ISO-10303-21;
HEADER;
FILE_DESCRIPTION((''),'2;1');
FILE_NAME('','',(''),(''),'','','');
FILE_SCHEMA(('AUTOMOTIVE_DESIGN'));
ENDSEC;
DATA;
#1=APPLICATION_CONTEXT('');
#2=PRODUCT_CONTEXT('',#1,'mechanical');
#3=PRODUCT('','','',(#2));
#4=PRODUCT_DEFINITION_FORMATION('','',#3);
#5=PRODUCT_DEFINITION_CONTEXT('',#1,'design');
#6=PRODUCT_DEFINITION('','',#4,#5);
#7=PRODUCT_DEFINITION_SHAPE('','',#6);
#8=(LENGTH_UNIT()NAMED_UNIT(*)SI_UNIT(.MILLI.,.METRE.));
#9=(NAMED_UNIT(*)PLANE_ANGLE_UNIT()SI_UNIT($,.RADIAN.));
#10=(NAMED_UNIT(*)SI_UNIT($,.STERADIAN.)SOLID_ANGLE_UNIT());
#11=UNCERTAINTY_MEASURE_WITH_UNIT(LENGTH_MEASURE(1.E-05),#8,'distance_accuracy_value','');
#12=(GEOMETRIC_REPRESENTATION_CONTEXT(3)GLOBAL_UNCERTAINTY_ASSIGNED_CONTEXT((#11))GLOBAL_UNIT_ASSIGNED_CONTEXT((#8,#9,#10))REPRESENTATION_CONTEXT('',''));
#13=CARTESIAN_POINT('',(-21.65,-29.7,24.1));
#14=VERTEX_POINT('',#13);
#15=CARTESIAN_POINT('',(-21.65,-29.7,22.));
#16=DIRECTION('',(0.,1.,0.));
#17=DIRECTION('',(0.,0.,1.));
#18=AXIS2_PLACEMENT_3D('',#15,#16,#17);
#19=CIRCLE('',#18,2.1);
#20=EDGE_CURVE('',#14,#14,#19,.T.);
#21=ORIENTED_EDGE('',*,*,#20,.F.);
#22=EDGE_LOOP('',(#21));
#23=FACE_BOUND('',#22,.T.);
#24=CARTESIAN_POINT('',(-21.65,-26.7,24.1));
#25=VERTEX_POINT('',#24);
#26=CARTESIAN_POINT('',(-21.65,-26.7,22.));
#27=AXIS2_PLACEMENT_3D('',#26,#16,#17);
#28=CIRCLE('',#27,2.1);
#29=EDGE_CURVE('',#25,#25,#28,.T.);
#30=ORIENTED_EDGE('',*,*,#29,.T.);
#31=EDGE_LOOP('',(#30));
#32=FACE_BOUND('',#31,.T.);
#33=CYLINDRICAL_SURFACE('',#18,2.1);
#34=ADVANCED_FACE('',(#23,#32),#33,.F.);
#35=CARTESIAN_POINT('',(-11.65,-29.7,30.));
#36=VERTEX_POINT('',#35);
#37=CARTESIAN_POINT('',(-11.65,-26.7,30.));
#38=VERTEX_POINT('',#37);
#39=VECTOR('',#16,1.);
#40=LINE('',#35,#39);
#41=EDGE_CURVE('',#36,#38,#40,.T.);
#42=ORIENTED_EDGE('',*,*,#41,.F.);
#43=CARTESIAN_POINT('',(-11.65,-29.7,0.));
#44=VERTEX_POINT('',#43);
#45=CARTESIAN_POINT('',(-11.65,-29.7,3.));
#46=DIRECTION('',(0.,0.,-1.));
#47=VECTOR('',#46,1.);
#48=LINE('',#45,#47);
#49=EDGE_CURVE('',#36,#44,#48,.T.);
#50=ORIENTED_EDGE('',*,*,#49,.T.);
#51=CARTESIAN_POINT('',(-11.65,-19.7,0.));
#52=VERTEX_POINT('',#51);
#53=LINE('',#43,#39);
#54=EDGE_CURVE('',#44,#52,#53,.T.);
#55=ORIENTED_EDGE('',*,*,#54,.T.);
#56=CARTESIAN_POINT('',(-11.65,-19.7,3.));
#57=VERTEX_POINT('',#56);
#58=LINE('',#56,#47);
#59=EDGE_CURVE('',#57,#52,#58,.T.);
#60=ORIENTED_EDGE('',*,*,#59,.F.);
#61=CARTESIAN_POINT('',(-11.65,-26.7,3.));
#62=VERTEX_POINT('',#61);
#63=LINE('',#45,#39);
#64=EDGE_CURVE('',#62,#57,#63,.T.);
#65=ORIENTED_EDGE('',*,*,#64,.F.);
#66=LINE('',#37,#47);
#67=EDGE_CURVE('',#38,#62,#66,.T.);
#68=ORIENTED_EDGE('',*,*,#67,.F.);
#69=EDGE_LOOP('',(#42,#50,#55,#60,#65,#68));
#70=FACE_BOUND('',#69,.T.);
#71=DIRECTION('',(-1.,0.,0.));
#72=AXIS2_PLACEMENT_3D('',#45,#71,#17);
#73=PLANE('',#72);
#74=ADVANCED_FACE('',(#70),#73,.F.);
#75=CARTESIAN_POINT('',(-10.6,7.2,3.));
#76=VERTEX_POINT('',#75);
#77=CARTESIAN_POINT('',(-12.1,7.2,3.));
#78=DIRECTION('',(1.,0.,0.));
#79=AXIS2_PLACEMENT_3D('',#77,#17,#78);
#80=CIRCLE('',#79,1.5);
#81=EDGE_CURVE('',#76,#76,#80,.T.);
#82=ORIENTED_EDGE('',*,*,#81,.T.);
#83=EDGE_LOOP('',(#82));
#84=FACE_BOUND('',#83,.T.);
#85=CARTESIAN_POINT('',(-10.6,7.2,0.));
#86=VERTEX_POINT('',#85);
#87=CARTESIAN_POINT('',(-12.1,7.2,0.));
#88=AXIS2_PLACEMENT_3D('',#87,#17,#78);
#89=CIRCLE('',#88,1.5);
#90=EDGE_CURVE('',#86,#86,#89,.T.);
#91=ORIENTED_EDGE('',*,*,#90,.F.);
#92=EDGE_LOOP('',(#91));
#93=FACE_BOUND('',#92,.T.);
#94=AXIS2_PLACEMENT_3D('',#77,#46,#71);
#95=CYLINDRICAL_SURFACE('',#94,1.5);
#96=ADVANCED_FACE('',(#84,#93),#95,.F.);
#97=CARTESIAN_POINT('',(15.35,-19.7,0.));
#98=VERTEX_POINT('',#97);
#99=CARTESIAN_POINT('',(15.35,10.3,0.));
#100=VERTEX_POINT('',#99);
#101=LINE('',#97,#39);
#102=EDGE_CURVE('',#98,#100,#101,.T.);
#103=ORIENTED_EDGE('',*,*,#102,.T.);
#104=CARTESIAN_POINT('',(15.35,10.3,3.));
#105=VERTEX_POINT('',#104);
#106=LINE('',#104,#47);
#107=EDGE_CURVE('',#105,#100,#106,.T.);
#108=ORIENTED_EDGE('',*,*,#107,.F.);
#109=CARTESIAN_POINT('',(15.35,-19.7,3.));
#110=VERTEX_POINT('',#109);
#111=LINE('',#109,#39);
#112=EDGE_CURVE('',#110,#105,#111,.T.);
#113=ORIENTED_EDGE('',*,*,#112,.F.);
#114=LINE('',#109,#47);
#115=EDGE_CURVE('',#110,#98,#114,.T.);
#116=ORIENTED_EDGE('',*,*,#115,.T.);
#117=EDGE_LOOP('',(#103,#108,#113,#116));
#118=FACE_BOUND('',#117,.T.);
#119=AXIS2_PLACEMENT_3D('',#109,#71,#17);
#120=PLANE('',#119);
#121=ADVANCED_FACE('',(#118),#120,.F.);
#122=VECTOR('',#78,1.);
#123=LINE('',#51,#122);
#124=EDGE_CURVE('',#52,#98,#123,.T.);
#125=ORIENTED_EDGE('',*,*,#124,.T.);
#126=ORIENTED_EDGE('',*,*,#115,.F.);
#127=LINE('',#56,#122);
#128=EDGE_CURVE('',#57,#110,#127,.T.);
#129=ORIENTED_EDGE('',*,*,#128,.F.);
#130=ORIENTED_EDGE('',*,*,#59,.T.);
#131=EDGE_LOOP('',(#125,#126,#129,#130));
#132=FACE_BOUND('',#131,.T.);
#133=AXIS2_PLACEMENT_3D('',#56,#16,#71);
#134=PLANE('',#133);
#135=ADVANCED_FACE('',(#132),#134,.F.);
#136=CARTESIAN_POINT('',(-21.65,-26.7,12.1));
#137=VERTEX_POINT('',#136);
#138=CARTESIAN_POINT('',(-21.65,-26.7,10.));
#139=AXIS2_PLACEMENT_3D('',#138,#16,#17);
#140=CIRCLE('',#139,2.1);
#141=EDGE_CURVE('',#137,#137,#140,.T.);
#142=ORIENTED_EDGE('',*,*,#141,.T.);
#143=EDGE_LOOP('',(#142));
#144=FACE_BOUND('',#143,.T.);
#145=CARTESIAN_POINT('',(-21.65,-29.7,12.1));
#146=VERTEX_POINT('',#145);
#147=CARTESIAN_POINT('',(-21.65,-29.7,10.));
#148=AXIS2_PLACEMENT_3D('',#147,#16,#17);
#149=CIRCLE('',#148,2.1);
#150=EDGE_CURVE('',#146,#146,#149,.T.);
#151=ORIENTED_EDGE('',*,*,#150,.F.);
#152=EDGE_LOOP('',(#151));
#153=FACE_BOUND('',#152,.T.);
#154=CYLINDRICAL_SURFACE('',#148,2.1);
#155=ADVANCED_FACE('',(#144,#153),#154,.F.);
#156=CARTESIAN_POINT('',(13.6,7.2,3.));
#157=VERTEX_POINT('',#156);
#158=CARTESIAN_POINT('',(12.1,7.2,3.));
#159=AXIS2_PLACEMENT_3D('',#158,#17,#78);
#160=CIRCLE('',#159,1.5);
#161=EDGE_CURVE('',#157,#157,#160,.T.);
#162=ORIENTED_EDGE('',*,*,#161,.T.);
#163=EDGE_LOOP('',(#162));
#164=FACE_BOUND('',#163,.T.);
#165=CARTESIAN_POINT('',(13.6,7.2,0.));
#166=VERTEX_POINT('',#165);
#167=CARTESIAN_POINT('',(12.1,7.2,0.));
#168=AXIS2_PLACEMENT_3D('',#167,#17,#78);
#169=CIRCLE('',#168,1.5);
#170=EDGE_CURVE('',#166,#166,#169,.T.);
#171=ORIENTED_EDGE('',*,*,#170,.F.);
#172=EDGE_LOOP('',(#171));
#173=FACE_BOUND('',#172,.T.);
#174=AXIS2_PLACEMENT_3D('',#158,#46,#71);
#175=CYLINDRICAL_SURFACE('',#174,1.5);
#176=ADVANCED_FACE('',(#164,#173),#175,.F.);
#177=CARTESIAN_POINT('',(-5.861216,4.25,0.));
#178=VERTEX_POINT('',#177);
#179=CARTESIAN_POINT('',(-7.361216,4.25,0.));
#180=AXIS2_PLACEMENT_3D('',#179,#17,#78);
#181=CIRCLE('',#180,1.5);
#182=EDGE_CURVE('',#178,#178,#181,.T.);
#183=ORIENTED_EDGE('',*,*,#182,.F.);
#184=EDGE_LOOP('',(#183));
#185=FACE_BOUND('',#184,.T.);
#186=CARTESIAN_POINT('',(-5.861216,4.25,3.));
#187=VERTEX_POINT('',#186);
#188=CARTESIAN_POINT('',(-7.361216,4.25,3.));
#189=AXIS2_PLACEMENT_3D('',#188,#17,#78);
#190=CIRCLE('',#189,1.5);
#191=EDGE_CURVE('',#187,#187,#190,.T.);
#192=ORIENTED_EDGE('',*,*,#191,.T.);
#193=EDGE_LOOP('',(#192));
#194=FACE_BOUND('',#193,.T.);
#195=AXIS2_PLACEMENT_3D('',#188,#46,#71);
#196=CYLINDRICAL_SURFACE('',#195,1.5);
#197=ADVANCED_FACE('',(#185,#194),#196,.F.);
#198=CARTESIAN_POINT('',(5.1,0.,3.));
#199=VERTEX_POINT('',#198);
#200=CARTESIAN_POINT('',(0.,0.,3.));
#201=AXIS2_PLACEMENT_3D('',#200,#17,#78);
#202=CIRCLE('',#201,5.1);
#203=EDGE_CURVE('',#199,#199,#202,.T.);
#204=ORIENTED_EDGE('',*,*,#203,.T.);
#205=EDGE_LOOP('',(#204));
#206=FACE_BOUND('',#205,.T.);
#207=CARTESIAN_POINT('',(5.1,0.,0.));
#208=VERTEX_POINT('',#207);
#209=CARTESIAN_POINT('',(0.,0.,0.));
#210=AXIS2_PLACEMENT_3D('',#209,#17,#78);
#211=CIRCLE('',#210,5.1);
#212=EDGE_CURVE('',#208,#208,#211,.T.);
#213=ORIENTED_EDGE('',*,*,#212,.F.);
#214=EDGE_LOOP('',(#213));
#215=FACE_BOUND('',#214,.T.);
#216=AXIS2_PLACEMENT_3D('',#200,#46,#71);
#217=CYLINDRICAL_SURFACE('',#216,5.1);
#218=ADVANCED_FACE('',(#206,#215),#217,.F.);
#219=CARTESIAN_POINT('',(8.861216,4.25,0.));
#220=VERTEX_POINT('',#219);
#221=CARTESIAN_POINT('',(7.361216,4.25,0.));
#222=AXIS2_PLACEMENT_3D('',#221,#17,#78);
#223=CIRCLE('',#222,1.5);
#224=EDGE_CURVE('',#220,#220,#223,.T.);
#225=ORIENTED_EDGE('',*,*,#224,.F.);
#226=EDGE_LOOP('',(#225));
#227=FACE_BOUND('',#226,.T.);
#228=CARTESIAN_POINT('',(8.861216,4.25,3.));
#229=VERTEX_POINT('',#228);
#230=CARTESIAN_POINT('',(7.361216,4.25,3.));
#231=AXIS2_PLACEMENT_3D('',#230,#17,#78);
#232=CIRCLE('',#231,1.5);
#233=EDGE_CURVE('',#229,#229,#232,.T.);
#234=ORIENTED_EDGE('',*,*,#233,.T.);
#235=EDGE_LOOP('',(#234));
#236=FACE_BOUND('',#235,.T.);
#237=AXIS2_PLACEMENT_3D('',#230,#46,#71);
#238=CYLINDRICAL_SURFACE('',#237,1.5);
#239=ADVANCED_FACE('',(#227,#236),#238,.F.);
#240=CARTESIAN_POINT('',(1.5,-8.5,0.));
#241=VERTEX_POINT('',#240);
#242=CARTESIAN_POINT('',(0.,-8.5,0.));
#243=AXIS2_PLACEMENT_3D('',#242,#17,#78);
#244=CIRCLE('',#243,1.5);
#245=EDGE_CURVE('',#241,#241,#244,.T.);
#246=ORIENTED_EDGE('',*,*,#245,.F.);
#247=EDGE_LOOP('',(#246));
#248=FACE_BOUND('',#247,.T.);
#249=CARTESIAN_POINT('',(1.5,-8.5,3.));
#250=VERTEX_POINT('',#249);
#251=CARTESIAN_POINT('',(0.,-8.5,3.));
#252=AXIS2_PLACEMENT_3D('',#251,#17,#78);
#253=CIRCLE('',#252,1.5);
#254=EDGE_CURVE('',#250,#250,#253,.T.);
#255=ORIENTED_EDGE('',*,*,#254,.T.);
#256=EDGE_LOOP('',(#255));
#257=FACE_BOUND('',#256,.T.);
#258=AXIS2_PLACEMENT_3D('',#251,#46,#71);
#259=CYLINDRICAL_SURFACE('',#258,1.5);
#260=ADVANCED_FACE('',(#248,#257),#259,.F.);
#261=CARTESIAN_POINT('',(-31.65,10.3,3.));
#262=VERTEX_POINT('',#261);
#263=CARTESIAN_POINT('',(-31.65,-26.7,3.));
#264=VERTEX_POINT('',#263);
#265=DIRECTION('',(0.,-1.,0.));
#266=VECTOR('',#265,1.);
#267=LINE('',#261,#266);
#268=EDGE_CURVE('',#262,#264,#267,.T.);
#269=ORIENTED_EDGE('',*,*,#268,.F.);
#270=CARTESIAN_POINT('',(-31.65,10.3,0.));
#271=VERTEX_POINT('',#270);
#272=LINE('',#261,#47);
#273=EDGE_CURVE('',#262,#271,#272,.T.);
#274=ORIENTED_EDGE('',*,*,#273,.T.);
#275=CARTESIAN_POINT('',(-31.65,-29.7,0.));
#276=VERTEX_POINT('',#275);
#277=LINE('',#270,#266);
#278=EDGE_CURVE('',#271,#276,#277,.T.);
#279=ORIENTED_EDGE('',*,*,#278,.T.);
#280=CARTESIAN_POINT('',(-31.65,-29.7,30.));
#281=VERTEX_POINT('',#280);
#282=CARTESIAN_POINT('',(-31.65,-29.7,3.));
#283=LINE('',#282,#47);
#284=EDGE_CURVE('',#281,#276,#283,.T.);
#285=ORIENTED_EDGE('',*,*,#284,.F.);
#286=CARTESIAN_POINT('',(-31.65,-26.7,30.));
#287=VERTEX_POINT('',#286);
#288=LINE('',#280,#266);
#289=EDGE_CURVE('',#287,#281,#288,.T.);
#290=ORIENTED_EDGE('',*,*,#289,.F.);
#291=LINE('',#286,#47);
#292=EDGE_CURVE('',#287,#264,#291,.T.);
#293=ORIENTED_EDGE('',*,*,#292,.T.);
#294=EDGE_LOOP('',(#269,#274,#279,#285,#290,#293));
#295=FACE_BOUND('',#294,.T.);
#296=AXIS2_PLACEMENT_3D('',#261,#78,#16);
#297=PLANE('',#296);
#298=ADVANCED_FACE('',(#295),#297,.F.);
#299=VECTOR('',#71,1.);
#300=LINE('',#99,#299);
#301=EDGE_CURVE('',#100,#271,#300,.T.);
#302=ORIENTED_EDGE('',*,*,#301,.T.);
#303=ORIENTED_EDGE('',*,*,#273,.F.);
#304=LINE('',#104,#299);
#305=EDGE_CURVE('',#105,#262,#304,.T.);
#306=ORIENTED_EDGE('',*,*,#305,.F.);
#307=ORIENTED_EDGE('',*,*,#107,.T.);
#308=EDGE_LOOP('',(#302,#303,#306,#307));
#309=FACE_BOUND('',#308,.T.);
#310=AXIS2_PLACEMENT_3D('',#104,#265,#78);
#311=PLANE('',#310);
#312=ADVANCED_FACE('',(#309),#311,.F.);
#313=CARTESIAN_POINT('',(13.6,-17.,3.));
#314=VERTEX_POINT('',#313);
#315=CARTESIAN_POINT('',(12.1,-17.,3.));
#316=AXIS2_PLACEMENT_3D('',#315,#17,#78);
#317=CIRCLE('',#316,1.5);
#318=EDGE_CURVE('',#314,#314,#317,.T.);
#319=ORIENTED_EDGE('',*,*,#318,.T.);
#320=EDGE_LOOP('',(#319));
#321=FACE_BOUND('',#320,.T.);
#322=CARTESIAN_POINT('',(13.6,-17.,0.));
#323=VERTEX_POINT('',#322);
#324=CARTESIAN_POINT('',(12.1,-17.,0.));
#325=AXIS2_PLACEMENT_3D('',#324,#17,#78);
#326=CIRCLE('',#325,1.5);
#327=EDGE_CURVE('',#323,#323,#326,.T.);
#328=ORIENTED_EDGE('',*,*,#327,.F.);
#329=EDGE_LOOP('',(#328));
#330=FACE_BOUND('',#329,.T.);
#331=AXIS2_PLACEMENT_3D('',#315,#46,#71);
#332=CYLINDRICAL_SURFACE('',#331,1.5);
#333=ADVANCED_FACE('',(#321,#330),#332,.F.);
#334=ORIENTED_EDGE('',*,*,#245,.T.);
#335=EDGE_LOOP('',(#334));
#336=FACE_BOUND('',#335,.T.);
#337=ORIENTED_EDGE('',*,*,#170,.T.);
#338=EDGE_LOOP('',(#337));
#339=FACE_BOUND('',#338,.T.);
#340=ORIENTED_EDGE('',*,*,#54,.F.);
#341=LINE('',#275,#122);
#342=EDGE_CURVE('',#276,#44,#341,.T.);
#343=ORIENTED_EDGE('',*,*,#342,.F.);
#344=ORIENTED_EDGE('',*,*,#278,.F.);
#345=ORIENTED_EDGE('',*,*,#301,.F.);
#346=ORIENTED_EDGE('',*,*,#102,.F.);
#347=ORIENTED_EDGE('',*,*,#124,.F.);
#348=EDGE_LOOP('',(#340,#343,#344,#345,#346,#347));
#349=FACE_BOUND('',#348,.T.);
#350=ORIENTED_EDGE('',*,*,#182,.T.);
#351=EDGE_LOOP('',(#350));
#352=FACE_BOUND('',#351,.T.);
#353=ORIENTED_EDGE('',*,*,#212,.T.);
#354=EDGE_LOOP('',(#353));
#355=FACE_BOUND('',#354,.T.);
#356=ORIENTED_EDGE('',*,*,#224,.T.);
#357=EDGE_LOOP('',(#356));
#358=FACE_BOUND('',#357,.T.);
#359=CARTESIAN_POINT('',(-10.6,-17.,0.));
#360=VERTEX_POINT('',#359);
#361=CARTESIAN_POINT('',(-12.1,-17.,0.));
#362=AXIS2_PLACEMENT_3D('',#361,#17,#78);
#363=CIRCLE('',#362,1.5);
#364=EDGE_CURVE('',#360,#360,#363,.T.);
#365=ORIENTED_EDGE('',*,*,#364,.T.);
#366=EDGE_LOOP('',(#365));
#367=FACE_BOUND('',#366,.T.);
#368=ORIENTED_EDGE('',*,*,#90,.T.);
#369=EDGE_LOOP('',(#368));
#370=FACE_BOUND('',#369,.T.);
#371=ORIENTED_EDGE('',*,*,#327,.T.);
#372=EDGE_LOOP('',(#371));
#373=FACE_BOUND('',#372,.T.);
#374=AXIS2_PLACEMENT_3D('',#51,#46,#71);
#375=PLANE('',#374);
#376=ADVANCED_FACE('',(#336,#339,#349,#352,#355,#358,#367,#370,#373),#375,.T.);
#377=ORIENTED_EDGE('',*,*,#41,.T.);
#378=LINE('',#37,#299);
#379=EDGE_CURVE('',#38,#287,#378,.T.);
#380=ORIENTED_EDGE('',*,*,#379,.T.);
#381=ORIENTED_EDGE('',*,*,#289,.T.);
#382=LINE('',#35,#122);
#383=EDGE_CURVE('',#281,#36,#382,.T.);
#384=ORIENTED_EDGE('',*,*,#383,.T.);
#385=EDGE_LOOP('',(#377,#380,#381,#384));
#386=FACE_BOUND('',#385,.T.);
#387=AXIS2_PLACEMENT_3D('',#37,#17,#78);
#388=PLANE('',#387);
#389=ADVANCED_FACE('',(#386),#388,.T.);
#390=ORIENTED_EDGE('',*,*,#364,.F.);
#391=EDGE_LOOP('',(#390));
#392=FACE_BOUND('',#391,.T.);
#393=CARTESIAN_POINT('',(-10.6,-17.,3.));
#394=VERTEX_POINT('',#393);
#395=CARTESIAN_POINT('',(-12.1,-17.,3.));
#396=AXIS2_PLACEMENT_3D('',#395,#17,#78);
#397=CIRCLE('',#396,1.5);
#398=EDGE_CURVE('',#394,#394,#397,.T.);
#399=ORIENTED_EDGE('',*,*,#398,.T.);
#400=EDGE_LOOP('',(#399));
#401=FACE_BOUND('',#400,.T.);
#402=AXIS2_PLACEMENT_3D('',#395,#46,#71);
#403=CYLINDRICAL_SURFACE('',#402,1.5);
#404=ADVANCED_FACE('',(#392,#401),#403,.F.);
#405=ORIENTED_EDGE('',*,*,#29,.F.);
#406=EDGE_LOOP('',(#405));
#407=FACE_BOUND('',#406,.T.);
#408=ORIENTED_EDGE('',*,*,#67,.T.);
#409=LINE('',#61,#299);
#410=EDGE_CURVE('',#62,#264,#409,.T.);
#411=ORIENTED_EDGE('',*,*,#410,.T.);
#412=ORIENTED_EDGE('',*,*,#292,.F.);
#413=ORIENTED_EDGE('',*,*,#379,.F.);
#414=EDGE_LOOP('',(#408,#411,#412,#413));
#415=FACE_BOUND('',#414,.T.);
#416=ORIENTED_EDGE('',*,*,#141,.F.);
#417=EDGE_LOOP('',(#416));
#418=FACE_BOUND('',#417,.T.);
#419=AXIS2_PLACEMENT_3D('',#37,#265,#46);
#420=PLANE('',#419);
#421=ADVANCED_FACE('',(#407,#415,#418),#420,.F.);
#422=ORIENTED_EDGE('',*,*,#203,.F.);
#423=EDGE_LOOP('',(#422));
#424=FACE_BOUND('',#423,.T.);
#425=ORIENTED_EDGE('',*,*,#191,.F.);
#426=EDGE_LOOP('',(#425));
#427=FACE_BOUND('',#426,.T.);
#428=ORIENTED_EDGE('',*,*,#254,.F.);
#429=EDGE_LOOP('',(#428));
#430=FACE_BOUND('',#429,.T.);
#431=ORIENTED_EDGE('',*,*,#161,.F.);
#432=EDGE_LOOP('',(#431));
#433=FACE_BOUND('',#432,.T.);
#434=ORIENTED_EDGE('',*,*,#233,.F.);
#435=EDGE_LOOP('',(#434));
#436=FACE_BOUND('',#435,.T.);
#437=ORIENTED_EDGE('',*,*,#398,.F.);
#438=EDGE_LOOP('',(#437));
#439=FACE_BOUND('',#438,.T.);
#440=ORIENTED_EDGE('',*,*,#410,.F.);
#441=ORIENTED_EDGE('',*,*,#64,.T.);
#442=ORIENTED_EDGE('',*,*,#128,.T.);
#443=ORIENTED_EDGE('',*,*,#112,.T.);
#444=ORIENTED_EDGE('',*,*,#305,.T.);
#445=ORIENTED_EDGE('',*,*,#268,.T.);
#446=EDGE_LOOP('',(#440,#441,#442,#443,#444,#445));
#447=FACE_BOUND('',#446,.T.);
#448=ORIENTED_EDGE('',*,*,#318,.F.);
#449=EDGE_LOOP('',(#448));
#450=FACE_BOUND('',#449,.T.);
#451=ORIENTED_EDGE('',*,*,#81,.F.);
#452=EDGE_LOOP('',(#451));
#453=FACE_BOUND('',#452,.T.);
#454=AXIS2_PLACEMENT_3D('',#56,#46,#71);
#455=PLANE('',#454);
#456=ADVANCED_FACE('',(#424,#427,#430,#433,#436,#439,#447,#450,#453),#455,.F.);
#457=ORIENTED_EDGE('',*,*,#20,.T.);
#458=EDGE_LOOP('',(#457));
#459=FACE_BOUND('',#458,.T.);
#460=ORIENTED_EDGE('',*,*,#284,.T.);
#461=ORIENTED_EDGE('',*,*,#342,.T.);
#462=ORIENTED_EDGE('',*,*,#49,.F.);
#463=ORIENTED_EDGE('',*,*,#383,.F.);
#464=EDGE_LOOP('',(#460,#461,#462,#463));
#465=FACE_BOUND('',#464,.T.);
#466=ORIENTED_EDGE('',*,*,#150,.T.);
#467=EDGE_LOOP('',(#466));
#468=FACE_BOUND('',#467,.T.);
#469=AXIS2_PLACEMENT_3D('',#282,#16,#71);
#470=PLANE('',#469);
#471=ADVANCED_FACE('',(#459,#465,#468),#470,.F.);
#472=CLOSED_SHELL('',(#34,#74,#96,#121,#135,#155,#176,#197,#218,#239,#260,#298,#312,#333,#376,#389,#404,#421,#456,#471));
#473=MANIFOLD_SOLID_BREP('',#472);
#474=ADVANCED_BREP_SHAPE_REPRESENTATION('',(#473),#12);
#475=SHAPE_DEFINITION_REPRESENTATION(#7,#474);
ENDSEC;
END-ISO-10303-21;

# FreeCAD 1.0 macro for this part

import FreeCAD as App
import Part
import Sketcher
from FreeCAD import Vector


def add_polygon(sketch, points):
    """Adds a closed chain of lines whose ends are joined by coincident constraints."""
    first, n = sketch.GeometryCount, len(points)
    for a, b in zip(points, points[1:] + points[:1]):
        sketch.addGeometry(Part.LineSegment(App.Vector(*a, 0), App.Vector(*b, 0)), False)
    for i in range(n):
        sketch.addConstraint(Sketcher.Constraint("Coincident", first + i, 2, first + (i + 1) % n, 1))

doc = App.newDocument("Part")
body = doc.addObject("PartDesign::Body", "Body")

sketch1 = doc.addObject("Sketcher::SketchObject", "Sketch")
body.addObject(sketch1)
sketch1.AttachmentSupport = (doc.XY_Plane, [""])
sketch1.MapMode = "FlatFace"
add_polygon(sketch1, [(-11.7, -19.7), (15.3, -19.7), (15.3, 10.3), (-31.6, 10.3), (-31.6, -29.7), (-11.7, -29.7)])
sketch1.addGeometry(Part.Circle(Vector(-12.1, -17, 0), Vector(0, 0, 1), 1.5), False)
sketch1.addGeometry(Part.Circle(Vector(12.1, -17, 0), Vector(0, 0, 1), 1.5), False)
sketch1.addGeometry(Part.Circle(Vector(0, -8.5, 0), Vector(0, 0, 1), 1.5), False)
sketch1.addGeometry(Part.Circle(Vector(-7.4, 4.2, 0), Vector(0, 0, 1), 1.5), False)
sketch1.addGeometry(Part.Circle(Vector(-12.1, 7.2, 0), Vector(0, 0, 1), 1.5), False)
sketch1.addGeometry(Part.Circle(Vector(0, 0, 0), Vector(0, 0, 1), 5.1), False)
sketch1.addGeometry(Part.Circle(Vector(7.4, 4.2, 0), Vector(0, 0, 1), 1.5), False)
sketch1.addGeometry(Part.Circle(Vector(12.1, 7.2, 0), Vector(0, 0, 1), 1.5), False)
sketch1.addConstraint([
    Sketcher.Constraint("Horizontal", 0),
    Sketcher.Constraint("Vertical", 1),
    Sketcher.Constraint("Horizontal", 2),
    Sketcher.Constraint("Vertical", 3),
    Sketcher.Constraint("Horizontal", 4),
    Sketcher.Constraint("Vertical", 5),
    Sketcher.Constraint("Coincident", 11, 3, -1, 1),
    Sketcher.Constraint("Equal", 6, 7),
    Sketcher.Constraint("Equal", 7, 8),
    Sketcher.Constraint("Equal", 8, 9),
    Sketcher.Constraint("Equal", 9, 10),
    Sketcher.Constraint("Equal", 10, 12),
    Sketcher.Constraint("Equal", 12, 13),
    Sketcher.Constraint("Symmetric", 6, 3, 7, 3, -2),
    Sketcher.Constraint("Symmetric", 9, 3, 12, 3, -2),
    Sketcher.Constraint("Symmetric", 10, 3, 13, 3, -2),
    Sketcher.Constraint("PointOnObject", 8, 3, -2),
    Sketcher.Constraint("Vertical", 6, 3, 10, 3),
    Sketcher.Constraint("Diameter", 6, 3.0),
    Sketcher.Constraint("Diameter", 11, 10.2),
    Sketcher.Constraint("DistanceX", 0, 1, 0, 2, 27.0),
    Sketcher.Constraint("DistanceX", 2, 2, 2, 1, 47.0),
    Sketcher.Constraint("DistanceY", 1, 1, 1, 2, 30.0),
    Sketcher.Constraint("DistanceY", 3, 2, 3, 1, 40.0),
    Sketcher.Constraint("DistanceY", 6, 3, -1, 1, 17.0),
    Sketcher.Constraint("DistanceX", 6, 3, -1, 1, 12.1),
    Sketcher.Constraint("DistanceY", 8, 3, -1, 1, 8.5),
    Sketcher.Constraint("DistanceY", -1, 1, 10, 3, 7.2),
    Sketcher.Constraint("DistanceY", 0, 2, -1, 1, 19.7),
    Sketcher.Constraint("DistanceY", -1, 1, 9, 3, 4.25),
    Sketcher.Constraint("DistanceX", -1, 1, 0, 2, 15.35),
    Sketcher.Constraint("DistanceX", 9, 3, 12, 3, 14.722432),
])
pad1 = doc.addObject("PartDesign::Pad", "Pad")
body.addObject(pad1)
pad1.Profile = sketch1
pad1.Length = 3

sketch2 = doc.addObject("Sketcher::SketchObject", "Sketch001")
body.addObject(sketch2)
sketch2.AttachmentSupport = (doc.XY_Plane, [""])
sketch2.MapMode = "FlatFace"
sketch2.AttachmentOffset = App.Placement(Vector(0, 0, 3), App.Rotation())
add_polygon(sketch2, [(-31.6, -26.7), (-31.6, -29.7), (-11.7, -29.7), (-11.7, -26.7)])
sketch2.addConstraint([
    Sketcher.Constraint("Vertical", 0),
    Sketcher.Constraint("Horizontal", 1),
    Sketcher.Constraint("Vertical", 2),
    Sketcher.Constraint("Horizontal", 3),
    Sketcher.Constraint("DistanceX", 1, 1, 1, 2, 20.0),
    Sketcher.Constraint("DistanceY", 0, 2, 0, 1, 3.0),
    Sketcher.Constraint("DistanceY", 0, 2, -1, 1, 29.7),
    Sketcher.Constraint("DistanceX", 0, 2, -1, 1, 31.65),
])
pad2 = doc.addObject("PartDesign::Pad", "Pad001")
body.addObject(pad2)
pad2.Profile = sketch2
pad2.Length = 27

sketch3 = doc.addObject("Sketcher::SketchObject", "Sketch002")
body.addObject(sketch3)
sketch3.AttachmentSupport = (doc.XZ_Plane, [""])
sketch3.MapMode = "FlatFace"
sketch3.AttachmentOffset = App.Placement(Vector(0, 0, 26.7), App.Rotation())
sketch3.addGeometry([
    Part.Circle(Vector(-21.6, 10, 0), Vector(0, 0, 1), 2.1),
    Part.Circle(Vector(-21.6, 22, 0), Vector(0, 0, 1), 2.1),
], False)
sketch3.addConstraint([
    Sketcher.Constraint("Equal", 0, 1),
    Sketcher.Constraint("Vertical", 0, 3, 1, 3),
    Sketcher.Constraint("Diameter", 0, 4.2),
    Sketcher.Constraint("DistanceY", -1, 1, 0, 3, 10.0),
    Sketcher.Constraint("DistanceY", -1, 1, 1, 3, 22.0),
    Sketcher.Constraint("DistanceX", 0, 3, -1, 1, 21.65),
])
pocket1 = doc.addObject("PartDesign::Pocket", "Pocket")
body.addObject(pocket1)
pocket1.Profile = sketch3
pocket1.Type = "ThroughAll"
pocket1.Reversed = True

doc.recompute()
